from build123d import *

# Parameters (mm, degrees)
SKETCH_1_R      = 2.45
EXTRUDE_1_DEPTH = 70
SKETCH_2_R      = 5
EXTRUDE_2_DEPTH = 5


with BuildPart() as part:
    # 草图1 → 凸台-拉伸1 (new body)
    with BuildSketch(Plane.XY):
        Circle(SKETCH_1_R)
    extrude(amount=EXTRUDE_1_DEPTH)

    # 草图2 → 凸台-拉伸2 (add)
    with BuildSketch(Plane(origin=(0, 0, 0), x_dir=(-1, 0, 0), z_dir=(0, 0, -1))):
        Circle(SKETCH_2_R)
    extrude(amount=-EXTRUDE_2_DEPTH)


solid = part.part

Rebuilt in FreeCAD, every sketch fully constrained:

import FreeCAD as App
import Part
import Sketcher

V = App.Vector

doc = App.newDocument("Part")
params = doc.addObject("Spreadsheet::Sheet", "Params")
for row, (alias, value) in enumerate([
    ("sketch1_diameter", "4.9 mm"),
    ("pad1_length", "70 mm"),
    ("sketch2_diameter", "10 mm"),
    ("pad2_length", "5 mm"),
], start=1):
    params.set(f"A{row}", alias)
    params.set(f"B{row}", "=" + value)
    params.setAlias(f"B{row}", alias)

body = doc.addObject("PartDesign::Body", "Body")

sketch1 = body.newObject("Sketcher::SketchObject", "Sketch")
sketch1.AttachmentSupport = (doc.getObject("XY_Plane"), [""])
sketch1.MapMode = "FlatFace"
sketch1.addGeometry(Part.Circle(V(0, 0, 0), V(0, 0, 1), 2.5), False)
sketch1.addConstraint(Sketcher.Constraint("Coincident", 0, 3, -1, 1))
sketch1.addConstraint(Sketcher.Constraint("Diameter", 0, 4.9))
sketch1.setExpression("Constraints[1]", "Params.sketch1_diameter")
pad1 = body.newObject("PartDesign::Pad", "Pad")
pad1.Profile = sketch1
pad1.setExpression("Length", "Params.pad1_length")

sketch2 = body.newObject("Sketcher::SketchObject", "Sketch001")
sketch2.AttachmentSupport = (doc.getObject("XY_Plane"), [""])
sketch2.MapMode = "FlatFace"
sketch2.addGeometry(Part.Circle(V(0, 0, 0), V(0, 0, 1), 5), False)
sketch2.addConstraint(Sketcher.Constraint("Coincident", 0, 3, -1, 1))
sketch2.addConstraint(Sketcher.Constraint("Diameter", 0, 10.0))
sketch2.setExpression("Constraints[1]", "Params.sketch2_diameter")
pad2 = body.newObject("PartDesign::Pad", "Pad001")
pad2.Profile = sketch2
pad2.setExpression("Length", "Params.pad2_length")

doc.recompute()
